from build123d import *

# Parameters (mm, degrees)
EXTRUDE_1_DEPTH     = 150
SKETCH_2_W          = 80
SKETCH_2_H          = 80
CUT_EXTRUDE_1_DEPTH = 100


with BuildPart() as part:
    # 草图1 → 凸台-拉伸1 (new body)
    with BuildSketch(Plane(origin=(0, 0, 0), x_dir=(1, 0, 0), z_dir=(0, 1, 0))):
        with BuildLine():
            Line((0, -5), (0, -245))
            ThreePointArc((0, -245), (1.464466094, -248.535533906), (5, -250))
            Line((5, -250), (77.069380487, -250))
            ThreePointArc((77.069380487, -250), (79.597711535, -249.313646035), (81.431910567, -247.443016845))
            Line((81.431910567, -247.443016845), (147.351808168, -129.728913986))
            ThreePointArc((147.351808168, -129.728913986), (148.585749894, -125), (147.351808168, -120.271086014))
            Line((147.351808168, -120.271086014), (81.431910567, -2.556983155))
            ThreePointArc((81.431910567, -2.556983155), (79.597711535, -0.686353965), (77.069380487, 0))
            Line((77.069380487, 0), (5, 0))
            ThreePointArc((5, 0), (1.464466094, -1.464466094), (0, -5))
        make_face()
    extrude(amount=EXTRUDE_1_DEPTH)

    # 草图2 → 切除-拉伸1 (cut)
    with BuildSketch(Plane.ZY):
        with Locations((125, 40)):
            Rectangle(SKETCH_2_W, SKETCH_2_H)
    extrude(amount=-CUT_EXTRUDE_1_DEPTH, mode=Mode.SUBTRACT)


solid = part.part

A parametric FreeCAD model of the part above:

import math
import FreeCAD as App
import Part
import Sketcher

V = App.Vector

doc = App.newDocument("Part")
body = doc.addObject("PartDesign::Body", "Body")

# Sketch on XZ plane
sketch1 = doc.addObject("Sketcher::SketchObject", "Sketch")
body.addObject(sketch1)
sketch1.AttachmentSupport = (doc.XZ_Plane, [""])
sketch1.MapMode = "FlatFace"
sketch1.addGeometry([
    Part.LineSegment(V(0, 5, 0), V(0, 245, 0)),  # 0
    Part.ArcOfCircle(Part.Circle(V(5, 245, 0), V(0, 0, 1), 5), math.radians(90), math.radians(180)),  # 1
    Part.LineSegment(V(5, 250, 0), V(77.1, 250, 0)),  # 2
    Part.ArcOfCircle(Part.Circle(V(77.1, 245, 0), V(0, 0, 1), 5), math.radians(29), math.radians(90)),  # 3
    Part.LineSegment(V(81.4, 247.4, 0), V(147.4, 129.7, 0)),  # 4
    Part.ArcOfCircle(Part.Circle(V(138.9, 125, 0), V(0, 0, 1), 9.7), math.radians(-29), math.radians(29)),  # 5
    Part.LineSegment(V(147.4, 120.3, 0), V(81.4, 2.6, 0)),  # 6
    Part.ArcOfCircle(Part.Circle(V(77.1, 5, 0), V(0, 0, 1), 5), math.radians(-90), math.radians(-29)),  # 7
    Part.LineSegment(V(77.1, 0, 0), V(5, 0, 0)),  # 8
    Part.ArcOfCircle(Part.Circle(V(5, 5, 0), V(0, 0, 1), 5), math.radians(180), math.radians(270)),  # 9
], False)
sketch1.addConstraint([
    Sketcher.Constraint("Tangent", 0, 2, 1, 2),
    Sketcher.Constraint("Tangent", 1, 1, 2, 1),
    Sketcher.Constraint("Tangent", 2, 2, 3, 2),
    Sketcher.Constraint("Tangent", 3, 1, 4, 1),
    Sketcher.Constraint("Tangent", 4, 2, 5, 2),
    Sketcher.Constraint("Tangent", 5, 1, 6, 1),
    Sketcher.Constraint("Tangent", 6, 2, 7, 2),
    Sketcher.Constraint("Tangent", 7, 1, 8, 1),
    Sketcher.Constraint("Tangent", 8, 2, 9, 2),
    Sketcher.Constraint("Tangent", 9, 1, 0, 1),
    Sketcher.Constraint("Vertical", 0),
    Sketcher.Constraint("Horizontal", 2),
    Sketcher.Constraint("Horizontal", 8),
    Sketcher.Constraint("Equal", 1, 3),
    Sketcher.Constraint("Equal", 3, 7),
    Sketcher.Constraint("Equal", 7, 9),
    Sketcher.Constraint("PointOnObject", 0, 2, -2),
    Sketcher.Constraint("PointOnObject", 7, 1, -1),
    Sketcher.Constraint("Vertical", 3, 3, 7, 3),
    Sketcher.Constraint("Vertical", 4, 2, 5, 1),
    Sketcher.Constraint("Radius", 1, 5.0),
    Sketcher.Constraint("DistanceY", 0, 1, 0, 2, 240.0),
    Sketcher.Constraint("Radius", 5, 9.678431),
    Sketcher.Constraint("DistanceX", 2, 1, 2, 2, 72.06938),
    Sketcher.Constraint("DistanceX", -1, 1, 5, 3, 138.907319),
])
pad1 = doc.addObject("PartDesign::Pad", "Pad")
body.addObject(pad1)
pad1.Profile = sketch1
pad1.Length = 150
pad1.Reversed = True

# Sketch on YZ plane
sketch2 = doc.addObject("Sketcher::SketchObject", "Sketch001")
body.addObject(sketch2)
sketch2.AttachmentSupport = (doc.YZ_Plane, [""])
sketch2.MapMode = "FlatFace"
sketch2.addGeometry([
    Part.LineSegment(V(80, 85, 0), V(0, 85, 0)),
    Part.LineSegment(V(0, 85, 0), V(0, 165, 0)),
    Part.LineSegment(V(0, 165, 0), V(80, 165, 0)),
    Part.LineSegment(V(80, 165, 0), V(80, 85, 0)),
], False)
sketch2.addConstraint([
    Sketcher.Constraint("Coincident", 0, 2, 1, 1),
    Sketcher.Constraint("Coincident", 1, 2, 2, 1),
    Sketcher.Constraint("Coincident", 2, 2, 3, 1),
    Sketcher.Constraint("Coincident", 3, 2, 0, 1),
    Sketcher.Constraint("Horizontal", 0),
    Sketcher.Constraint("Vertical", 1),
    Sketcher.Constraint("Horizontal", 2),
    Sketcher.Constraint("Vertical", 3),
    Sketcher.Constraint("PointOnObject", 0, 2, -2),
    Sketcher.Constraint("Equal", 2, 1),
    Sketcher.Constraint("DistanceX", 0, 2, 0, 1, 80.0),
    Sketcher.Constraint("DistanceY", -1, 1, 0, 2, 85.0),
])
pocket1 = doc.addObject("PartDesign::Pocket", "Pocket")
body.addObject(pocket1)
pocket1.Profile = sketch2
pocket1.Length = 100
pocket1.Reversed = True

doc.recompute()
